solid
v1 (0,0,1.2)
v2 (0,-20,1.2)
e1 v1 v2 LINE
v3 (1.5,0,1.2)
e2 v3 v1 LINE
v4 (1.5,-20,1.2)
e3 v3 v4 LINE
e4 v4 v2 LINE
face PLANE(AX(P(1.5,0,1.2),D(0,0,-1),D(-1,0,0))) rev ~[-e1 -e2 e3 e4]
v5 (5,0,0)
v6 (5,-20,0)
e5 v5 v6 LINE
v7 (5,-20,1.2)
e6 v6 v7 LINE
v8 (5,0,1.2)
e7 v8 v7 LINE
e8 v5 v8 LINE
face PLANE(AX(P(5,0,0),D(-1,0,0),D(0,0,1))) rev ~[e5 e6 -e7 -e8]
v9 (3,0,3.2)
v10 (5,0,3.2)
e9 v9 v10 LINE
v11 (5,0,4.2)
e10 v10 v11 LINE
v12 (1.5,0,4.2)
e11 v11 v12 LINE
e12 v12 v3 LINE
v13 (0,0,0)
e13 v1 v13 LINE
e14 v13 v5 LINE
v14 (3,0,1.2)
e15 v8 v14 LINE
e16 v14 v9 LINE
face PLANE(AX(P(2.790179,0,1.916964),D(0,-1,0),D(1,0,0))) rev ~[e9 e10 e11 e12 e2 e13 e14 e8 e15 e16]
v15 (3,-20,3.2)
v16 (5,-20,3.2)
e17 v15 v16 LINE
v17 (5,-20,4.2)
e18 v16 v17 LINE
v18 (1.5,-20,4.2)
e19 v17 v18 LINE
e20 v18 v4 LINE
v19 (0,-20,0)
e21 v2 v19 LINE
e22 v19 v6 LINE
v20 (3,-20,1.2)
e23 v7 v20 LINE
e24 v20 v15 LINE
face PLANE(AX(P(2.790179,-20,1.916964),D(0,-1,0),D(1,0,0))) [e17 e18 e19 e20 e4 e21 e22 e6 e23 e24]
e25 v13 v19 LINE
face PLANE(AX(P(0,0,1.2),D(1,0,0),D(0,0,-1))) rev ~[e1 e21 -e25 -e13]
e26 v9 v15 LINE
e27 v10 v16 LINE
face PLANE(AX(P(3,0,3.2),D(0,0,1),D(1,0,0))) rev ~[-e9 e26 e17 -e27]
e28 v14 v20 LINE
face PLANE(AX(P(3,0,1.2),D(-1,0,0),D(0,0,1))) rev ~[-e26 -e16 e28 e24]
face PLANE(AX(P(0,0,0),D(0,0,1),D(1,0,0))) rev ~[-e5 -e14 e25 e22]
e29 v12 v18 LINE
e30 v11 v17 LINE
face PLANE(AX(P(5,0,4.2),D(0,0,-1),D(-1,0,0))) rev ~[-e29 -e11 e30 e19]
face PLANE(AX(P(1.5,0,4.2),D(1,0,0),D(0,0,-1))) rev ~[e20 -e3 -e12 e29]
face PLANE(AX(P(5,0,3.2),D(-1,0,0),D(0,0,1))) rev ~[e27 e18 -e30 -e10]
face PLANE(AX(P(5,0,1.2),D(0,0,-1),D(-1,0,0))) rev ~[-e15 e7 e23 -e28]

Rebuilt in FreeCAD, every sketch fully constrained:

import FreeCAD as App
import Part
import Sketcher


def add_polygon(sketch, points):
    """Adds a closed chain of lines whose ends are joined by coincident constraints."""
    first, n = sketch.GeometryCount, len(points)
    for a, b in zip(points, points[1:] + points[:1]):
        sketch.addGeometry(Part.LineSegment(App.Vector(*a, 0), App.Vector(*b, 0)), False)
    for i in range(n):
        sketch.addConstraint(Sketcher.Constraint("Coincident", first + i, 2, first + (i + 1) % n, 1))

doc = App.newDocument("Part")
body = doc.addObject("PartDesign::Body", "Body")

sketch1 = body.newObject("Sketcher::SketchObject", "Sketch")
sketch1.AttachmentSupport = (doc.getObject("XZ_Plane"), [""])
sketch1.MapMode = "FlatFace"
add_polygon(sketch1, [(0, 0), (5, 0), (5, 1.2), (3, 1.2), (3, 3.2), (5, 3.2), (5, 4.2), (1.5, 4.2), (1.5, 1.2), (0, 1.2)])
sketch1.addConstraint([
    Sketcher.Constraint("Horizontal", 0),
    Sketcher.Constraint("Vertical", 1),
    Sketcher.Constraint("Horizontal", 2),
    Sketcher.Constraint("Vertical", 3),
    Sketcher.Constraint("Horizontal", 4),
    Sketcher.Constraint("Vertical", 5),
    Sketcher.Constraint("Horizontal", 6),
    Sketcher.Constraint("Vertical", 7),
    Sketcher.Constraint("Horizontal", 8),
    Sketcher.Constraint("Vertical", 9),
    Sketcher.Constraint("Coincident", 9, 2, -1, 1),
    Sketcher.Constraint("Horizontal", 2, 2, 7, 2),
    Sketcher.Constraint("Vertical", 1, 2, 4, 2),
    Sketcher.Constraint("Equal", 4, 3),
    Sketcher.Constraint("DistanceX", 0, 1, 0, 2, 5.0),
    Sketcher.Constraint("DistanceX", 2, 2, 2, 1, 2.0),
    Sketcher.Constraint("DistanceY", 5, 1, 5, 2, 1.0),
    Sketcher.Constraint("DistanceX", 6, 2, 6, 1, 3.5),
    Sketcher.Constraint("DistanceY", 1, 1, 1, 2, 1.2),
])
pad1 = body.newObject("PartDesign::Pad", "Pad")
pad1.Profile = sketch1
pad1.Length = 20

doc.recompute()
